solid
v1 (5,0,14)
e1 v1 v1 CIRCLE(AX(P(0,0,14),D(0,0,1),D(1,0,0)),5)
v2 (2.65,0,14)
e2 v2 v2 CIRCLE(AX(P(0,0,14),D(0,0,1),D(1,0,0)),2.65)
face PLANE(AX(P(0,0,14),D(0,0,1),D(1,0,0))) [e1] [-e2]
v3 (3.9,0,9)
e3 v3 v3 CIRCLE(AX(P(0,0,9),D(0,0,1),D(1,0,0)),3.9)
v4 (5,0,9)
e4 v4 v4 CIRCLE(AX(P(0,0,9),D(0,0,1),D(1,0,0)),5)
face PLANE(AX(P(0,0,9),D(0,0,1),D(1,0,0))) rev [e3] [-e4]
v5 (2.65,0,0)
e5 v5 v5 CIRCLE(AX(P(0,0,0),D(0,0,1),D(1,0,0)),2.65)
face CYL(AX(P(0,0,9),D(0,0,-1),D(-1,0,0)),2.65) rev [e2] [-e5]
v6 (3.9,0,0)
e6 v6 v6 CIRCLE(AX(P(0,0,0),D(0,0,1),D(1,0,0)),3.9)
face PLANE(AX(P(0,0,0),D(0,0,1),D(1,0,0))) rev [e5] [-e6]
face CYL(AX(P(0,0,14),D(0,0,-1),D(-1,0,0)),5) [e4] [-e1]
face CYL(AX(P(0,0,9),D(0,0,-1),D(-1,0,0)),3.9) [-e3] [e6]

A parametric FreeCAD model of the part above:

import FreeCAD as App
import Part
import Sketcher

V = App.Vector
Q = App.Units.Quantity

doc = App.newDocument("Part")
body = doc.addObject("PartDesign::Body", "Body")

# Sketch on XY plane
sketch1 = body.newObject("Sketcher::SketchObject", "Sketch")
sketch1.AttachmentSupport = (doc.getObject("XY_Plane"), [""])
sketch1.MapMode = "FlatFace"
sketch1.addGeometry([
    Part.Circle(V(0, 0, 0), V(0, 0, 1), 3.9),
    Part.Circle(V(0, 0, 0), V(0, 0, 1), 2.65),
], False)
sketch1.addConstraint([
    Sketcher.Constraint("Coincident", 0, 3, -1, 1),
    Sketcher.Constraint("Coincident", 1, 3, -1, 1),
    Sketcher.Constraint("Diameter", 0, Q("7.8 mm")),
    Sketcher.Constraint("Diameter", 1, Q("5.3 mm")),
])
pad1 = body.newObject("PartDesign::Pad", "Pad")
pad1.Profile = sketch1
pad1.Length = 9
body2 = doc.addObject("PartDesign::Body", "Body001")

# Sketch on XY plane
sketch2 = body2.newObject("Sketcher::SketchObject", "Sketch001")
sketch2.AttachmentSupport = (doc.getObject("XY_Plane001"), [""])
sketch2.MapMode = "FlatFace"
sketch2.AttachmentOffset = App.Placement(V(0, 0, 9), App.Rotation())
sketch2.addGeometry([
    Part.Circle(V(0, 0, 0), V(0, 0, 1), 5),
    Part.Circle(V(0, 0, 0), V(0, 0, 1), 3.9),
], False)
sketch2.addConstraint([
    Sketcher.Constraint("Coincident", 0, 3, -1, 1),
    Sketcher.Constraint("Coincident", 1, 3, -1, 1),
    Sketcher.Constraint("Diameter", 0, Q("10 mm")),
    Sketcher.Constraint("Diameter", 1, Q("7.8 mm")),
])
pad2 = body2.newObject("PartDesign::Pad", "Pad001")
pad2.Profile = sketch2
pad2.Length = 5
body.AllowCompound = True
doc.recompute()

boolean = body.newObject("PartDesign::Boolean", "Boolean")
boolean.Type = "Fuse"
boolean.addObjects([body2])

# Sketch on XY plane
sketch3 = body.newObject("Sketcher::SketchObject", "Sketch002")
sketch3.AttachmentSupport = (doc.getObject("XY_Plane"), [""])
sketch3.MapMode = "FlatFace"
sketch3.AttachmentOffset = App.Placement(V(0, 0, 9), App.Rotation())
sketch3.addGeometry([
    Part.Circle(V(0, 0, 0), V(0, 0, 1), 3.9),
    Part.Circle(V(0, 0, 0), V(0, 0, 1), 2.65),
], False)
sketch3.addConstraint([
    Sketcher.Constraint("Coincident", 0, 3, -1, 1),
    Sketcher.Constraint("Coincident", 1, 3, -1, 1),
    Sketcher.Constraint("Diameter", 0, Q("7.8 mm")),
    Sketcher.Constraint("Diameter", 1, Q("5.3 mm")),
])
pad3 = body.newObject("PartDesign::Pad", "Pad002")
pad3.Profile = sketch3
pad3.Length = 5

doc.recompute()
